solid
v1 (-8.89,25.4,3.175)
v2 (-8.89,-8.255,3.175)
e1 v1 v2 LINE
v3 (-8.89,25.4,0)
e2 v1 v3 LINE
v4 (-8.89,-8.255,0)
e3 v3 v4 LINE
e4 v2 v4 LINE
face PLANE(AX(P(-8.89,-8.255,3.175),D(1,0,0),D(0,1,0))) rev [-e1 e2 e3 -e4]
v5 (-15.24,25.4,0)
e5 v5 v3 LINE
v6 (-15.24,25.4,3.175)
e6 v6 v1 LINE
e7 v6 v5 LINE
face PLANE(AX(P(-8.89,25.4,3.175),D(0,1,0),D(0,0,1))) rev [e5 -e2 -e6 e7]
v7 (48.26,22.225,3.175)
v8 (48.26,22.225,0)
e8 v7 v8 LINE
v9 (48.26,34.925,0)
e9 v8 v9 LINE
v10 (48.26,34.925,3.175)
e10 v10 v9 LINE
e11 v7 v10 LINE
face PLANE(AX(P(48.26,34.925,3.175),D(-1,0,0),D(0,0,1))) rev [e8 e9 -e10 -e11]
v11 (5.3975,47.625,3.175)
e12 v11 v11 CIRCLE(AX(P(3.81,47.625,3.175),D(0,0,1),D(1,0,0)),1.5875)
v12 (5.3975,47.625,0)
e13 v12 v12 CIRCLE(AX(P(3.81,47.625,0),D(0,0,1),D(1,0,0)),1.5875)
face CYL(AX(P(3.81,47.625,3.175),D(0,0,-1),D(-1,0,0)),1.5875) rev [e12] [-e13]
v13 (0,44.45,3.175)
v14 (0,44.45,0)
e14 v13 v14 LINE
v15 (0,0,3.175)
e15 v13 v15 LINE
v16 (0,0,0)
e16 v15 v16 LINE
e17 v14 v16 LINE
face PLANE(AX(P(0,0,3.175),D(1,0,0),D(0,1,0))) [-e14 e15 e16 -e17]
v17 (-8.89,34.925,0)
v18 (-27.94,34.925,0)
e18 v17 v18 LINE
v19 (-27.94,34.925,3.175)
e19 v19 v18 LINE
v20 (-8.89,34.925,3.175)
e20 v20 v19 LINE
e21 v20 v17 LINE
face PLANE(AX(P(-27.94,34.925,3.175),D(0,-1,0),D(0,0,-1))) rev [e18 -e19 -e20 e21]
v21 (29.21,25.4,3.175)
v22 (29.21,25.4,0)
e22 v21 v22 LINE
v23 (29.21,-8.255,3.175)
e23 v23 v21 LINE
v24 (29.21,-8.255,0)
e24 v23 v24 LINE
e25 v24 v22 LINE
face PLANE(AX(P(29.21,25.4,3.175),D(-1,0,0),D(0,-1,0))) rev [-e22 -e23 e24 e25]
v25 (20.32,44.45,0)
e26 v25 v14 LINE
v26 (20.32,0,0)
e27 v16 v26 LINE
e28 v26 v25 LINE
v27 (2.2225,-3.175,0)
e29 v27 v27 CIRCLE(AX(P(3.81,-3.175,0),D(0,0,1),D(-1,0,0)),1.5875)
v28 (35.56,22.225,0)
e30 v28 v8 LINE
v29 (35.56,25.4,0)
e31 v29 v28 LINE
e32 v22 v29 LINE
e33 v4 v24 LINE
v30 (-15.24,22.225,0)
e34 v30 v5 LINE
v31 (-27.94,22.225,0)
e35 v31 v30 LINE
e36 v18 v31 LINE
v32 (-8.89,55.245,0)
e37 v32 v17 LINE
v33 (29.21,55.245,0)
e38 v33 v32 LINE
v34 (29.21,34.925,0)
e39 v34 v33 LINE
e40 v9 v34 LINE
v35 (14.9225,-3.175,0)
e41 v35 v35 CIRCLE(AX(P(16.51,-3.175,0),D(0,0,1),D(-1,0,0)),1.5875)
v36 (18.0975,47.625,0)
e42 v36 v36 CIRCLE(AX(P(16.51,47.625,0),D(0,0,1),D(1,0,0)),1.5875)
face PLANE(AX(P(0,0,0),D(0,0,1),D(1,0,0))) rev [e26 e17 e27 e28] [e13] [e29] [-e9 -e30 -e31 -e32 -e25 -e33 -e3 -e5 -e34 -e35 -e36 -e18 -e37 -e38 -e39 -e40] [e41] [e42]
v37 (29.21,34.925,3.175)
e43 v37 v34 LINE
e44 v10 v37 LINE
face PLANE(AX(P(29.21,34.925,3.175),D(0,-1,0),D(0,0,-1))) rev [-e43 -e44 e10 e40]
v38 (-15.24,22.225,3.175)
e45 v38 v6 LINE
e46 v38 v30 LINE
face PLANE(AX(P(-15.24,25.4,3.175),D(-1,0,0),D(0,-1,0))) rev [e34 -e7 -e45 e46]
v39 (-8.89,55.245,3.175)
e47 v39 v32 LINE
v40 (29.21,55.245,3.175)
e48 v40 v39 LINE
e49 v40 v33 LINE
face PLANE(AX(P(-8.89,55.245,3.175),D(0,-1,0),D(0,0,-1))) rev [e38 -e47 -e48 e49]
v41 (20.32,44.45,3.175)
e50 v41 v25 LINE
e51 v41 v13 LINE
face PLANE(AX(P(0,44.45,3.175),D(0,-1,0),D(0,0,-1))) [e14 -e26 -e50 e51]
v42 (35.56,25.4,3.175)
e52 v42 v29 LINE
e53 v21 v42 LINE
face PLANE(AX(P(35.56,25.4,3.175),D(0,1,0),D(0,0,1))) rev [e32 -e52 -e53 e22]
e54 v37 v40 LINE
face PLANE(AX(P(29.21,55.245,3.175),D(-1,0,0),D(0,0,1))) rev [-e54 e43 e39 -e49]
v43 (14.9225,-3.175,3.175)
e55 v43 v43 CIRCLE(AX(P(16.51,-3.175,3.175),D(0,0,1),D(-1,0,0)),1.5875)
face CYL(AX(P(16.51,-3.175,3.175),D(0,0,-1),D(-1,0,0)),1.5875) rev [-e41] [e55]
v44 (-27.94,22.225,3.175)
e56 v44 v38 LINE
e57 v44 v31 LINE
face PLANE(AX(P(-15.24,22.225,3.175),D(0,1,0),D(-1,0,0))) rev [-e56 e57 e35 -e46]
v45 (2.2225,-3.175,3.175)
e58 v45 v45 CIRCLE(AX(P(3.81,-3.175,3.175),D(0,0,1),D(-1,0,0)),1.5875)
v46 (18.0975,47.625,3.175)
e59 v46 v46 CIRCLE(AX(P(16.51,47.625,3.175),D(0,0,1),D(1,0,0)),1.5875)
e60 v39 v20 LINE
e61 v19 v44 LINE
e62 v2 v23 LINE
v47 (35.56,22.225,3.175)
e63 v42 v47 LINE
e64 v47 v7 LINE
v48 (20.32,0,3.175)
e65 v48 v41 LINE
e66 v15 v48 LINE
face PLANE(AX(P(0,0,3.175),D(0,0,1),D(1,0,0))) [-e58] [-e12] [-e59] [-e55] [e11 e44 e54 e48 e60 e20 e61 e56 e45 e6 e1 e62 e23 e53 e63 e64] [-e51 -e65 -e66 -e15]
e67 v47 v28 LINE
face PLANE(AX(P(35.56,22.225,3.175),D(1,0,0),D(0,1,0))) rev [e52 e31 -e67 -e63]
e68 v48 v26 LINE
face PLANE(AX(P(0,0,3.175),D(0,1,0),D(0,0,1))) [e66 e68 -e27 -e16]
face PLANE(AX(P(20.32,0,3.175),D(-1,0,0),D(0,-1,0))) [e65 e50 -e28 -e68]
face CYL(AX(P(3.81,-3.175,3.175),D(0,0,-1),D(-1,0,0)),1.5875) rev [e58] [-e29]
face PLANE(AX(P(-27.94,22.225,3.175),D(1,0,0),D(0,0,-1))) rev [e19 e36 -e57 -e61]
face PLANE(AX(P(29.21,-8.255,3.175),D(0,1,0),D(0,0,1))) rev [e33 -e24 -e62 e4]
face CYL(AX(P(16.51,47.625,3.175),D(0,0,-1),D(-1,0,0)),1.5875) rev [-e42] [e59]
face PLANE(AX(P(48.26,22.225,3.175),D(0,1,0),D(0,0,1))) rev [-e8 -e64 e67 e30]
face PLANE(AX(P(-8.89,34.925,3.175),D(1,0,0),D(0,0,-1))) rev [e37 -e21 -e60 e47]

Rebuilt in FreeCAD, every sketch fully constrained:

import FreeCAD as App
import Part
import Sketcher
from FreeCAD import Vector
Q = App.Units.Quantity


def add_polygon(sketch, points):
    """Adds a closed chain of lines whose ends are joined by coincident constraints."""
    first, n = sketch.GeometryCount, len(points)
    for a, b in zip(points, points[1:] + points[:1]):
        sketch.addGeometry(Part.LineSegment(App.Vector(*a, 0), App.Vector(*b, 0)), False)
    for i in range(n):
        sketch.addConstraint(Sketcher.Constraint("Coincident", first + i, 2, first + (i + 1) % n, 1))

doc = App.newDocument("Part")
params = doc.addObject("Spreadsheet::Sheet", "Params")
for row, (alias, value) in enumerate([
    ("sketch1_diameter", "0.125 in"),
    ("sketch1_width", "1.5 in"),
    ("sketch1_width2", "0.5 in"),
    ("sketch1_width3", "0.8 in"),
    ("sketch1_width4", "0.25 in"),
    ("pad1_length", "0.125 in"),
], start=1):
    params.set(f"A{row}", alias)
    params.set(f"B{row}", "=" + value)
    params.setAlias(f"B{row}", alias)

body = doc.addObject("PartDesign::Body", "Body")

sketch1 = body.newObject("Sketcher::SketchObject", "Sketch")
sketch1.AttachmentSupport = (doc.getObject("XY_Plane"), [""])
sketch1.MapMode = "FlatFace"
add_polygon(sketch1, [(-15.24, 25.4), (-8.89, 25.4), (-8.89, -8.255), (29.21, -8.255), (29.21, 25.4), (35.56, 25.4), (35.56, 22.225), (48.26, 22.225), (48.26, 34.925), (29.21, 34.925), (29.21, 55.245), (-8.89, 55.245), (-8.89, 34.925), (-27.94, 34.925), (-27.94, 22.225), (-15.24, 22.225)])
sketch1.addGeometry(Part.Circle(Vector(16.51, -3.175, 0), Vector(0, 0, 1), 1.5875), False)
sketch1.addGeometry(Part.Circle(Vector(3.81, -3.175, 0), Vector(0, 0, 1), 1.5875), False)
add_polygon(sketch1, [(0, 0), (0, 44.45), (20.32, 44.45), (20.32, 0)])
sketch1.addGeometry(Part.Circle(Vector(16.51, 47.625, 0), Vector(0, 0, 1), 1.5875), False)
sketch1.addGeometry(Part.Circle(Vector(3.81, 47.625, 0), Vector(0, 0, 1), 1.5875), False)
sketch1.addConstraint(Sketcher.Constraint("Horizontal", 0))
sketch1.addConstraint(Sketcher.Constraint("Vertical", 1))
sketch1.addConstraint(Sketcher.Constraint("Horizontal", 2))
sketch1.addConstraint(Sketcher.Constraint("Vertical", 3))
sketch1.addConstraint(Sketcher.Constraint("Horizontal", 4))
sketch1.addConstraint(Sketcher.Constraint("Vertical", 5))
sketch1.addConstraint(Sketcher.Constraint("Horizontal", 6))
sketch1.addConstraint(Sketcher.Constraint("Vertical", 7))
sketch1.addConstraint(Sketcher.Constraint("Horizontal", 8))
sketch1.addConstraint(Sketcher.Constraint("Vertical", 9))
sketch1.addConstraint(Sketcher.Constraint("Horizontal", 10))
sketch1.addConstraint(Sketcher.Constraint("Vertical", 11))
sketch1.addConstraint(Sketcher.Constraint("Horizontal", 12))
sketch1.addConstraint(Sketcher.Constraint("Vertical", 13))
sketch1.addConstraint(Sketcher.Constraint("Horizontal", 14))
sketch1.addConstraint(Sketcher.Constraint("Vertical", 15))
sketch1.addConstraint(Sketcher.Constraint("Vertical", 18))
sketch1.addConstraint(Sketcher.Constraint("Horizontal", 19))
sketch1.addConstraint(Sketcher.Constraint("Vertical", 20))
sketch1.addConstraint(Sketcher.Constraint("Horizontal", 21))
sketch1.addConstraint(Sketcher.Constraint("Coincident", 21, 2, -1, 1))
sketch1.addConstraint(Sketcher.Constraint("Equal", 16, 17))
sketch1.addConstraint(Sketcher.Constraint("Equal", 17, 22))
sketch1.addConstraint(Sketcher.Constraint("Equal", 22, 23))
sketch1.addConstraint(Sketcher.Constraint("Horizontal", 16, 3, 17, 3))
sketch1.addConstraint(Sketcher.Constraint("Horizontal", 22, 3, 23, 3))
sketch1.addConstraint(Sketcher.Constraint("Horizontal", 0, 2, 3, 2))
sketch1.addConstraint(Sketcher.Constraint("Horizontal", 8, 2, 11, 2))
sketch1.addConstraint(Sketcher.Constraint("Horizontal", 6, 2, 13, 2))
sketch1.addConstraint(Sketcher.Constraint("Vertical", 16, 3, 22, 3))
sketch1.addConstraint(Sketcher.Constraint("Vertical", 17, 3, 23, 3))
sketch1.addConstraint(Sketcher.Constraint("Vertical", 3, 2, 8, 2))
sketch1.addConstraint(Sketcher.Constraint("Vertical", 1, 2, 10, 2))
sketch1.addConstraint(Sketcher.Constraint("Equal", 0, 4))
sketch1.addConstraint(Sketcher.Constraint("Equal", 8, 12))
sketch1.addConstraint(Sketcher.Constraint("Equal", 14, 7))
sketch1.addConstraint(Sketcher.Constraint("Equal", 21, 9))
sketch1.addConstraint(Sketcher.Constraint("Diameter", 16, Q("0.125 in")))
sketch1.addConstraint(Sketcher.Constraint("DistanceX", 2, 1, 2, 2, Q("1.5 in")))
sketch1.addConstraint(Sketcher.Constraint("DistanceX", 6, 1, 6, 2, Q("0.5 in")))
sketch1.addConstraint(Sketcher.Constraint("DistanceX", 19, 1, 19, 2, Q("0.8 in")))
sketch1.addConstraint(Sketcher.Constraint("DistanceY", -1, 1, 0, 2, Q("1 in")))
sketch1.addConstraint(Sketcher.Constraint("DistanceY", 16, 3, 22, 3, Q("2 in")))
sketch1.addConstraint(Sketcher.Constraint("DistanceX", 0, 2, 22, 3, Q("1 in")))
sketch1.addConstraint(Sketcher.Constraint("DistanceX", 17, 3, 2, 2, Q("1 in")))
sketch1.addConstraint(Sketcher.Constraint("DistanceY", 5, 2, 22, 3, Q("1 in")))
sketch1.addConstraint(Sketcher.Constraint("DistanceX", 0, 1, 0, 2, Q("0.25 in")))
sketch1.addConstraint(Sketcher.Constraint("DistanceY", 18, 1, 18, 2, Q("1.75 in")))
sketch1.addConstraint(Sketcher.Constraint("DistanceX", -1, 1, 4, 2, Q("1.4 in")))
sketch1.addConstraint(Sketcher.Constraint("DistanceY", 1, 2, 17, 3, Q("0.2 in")))
sketch1.addConstraint(Sketcher.Constraint("DistanceY", 1, 2, 1, 1, Q("1.325 in")))
sketch1.setExpression("Constraints[57]", "Params.sketch1_diameter")
sketch1.setExpression("Constraints[58]", "Params.sketch1_width")
sketch1.setExpression("Constraints[59]", "Params.sketch1_width2")
sketch1.setExpression("Constraints[60]", "Params.sketch1_width3")
sketch1.setExpression("Constraints[66]", "Params.sketch1_width4")
pad1 = body.newObject("PartDesign::Pad", "Pad")
pad1.Profile = sketch1
pad1.setExpression("Length", "Params.pad1_length")

doc.recompute()
